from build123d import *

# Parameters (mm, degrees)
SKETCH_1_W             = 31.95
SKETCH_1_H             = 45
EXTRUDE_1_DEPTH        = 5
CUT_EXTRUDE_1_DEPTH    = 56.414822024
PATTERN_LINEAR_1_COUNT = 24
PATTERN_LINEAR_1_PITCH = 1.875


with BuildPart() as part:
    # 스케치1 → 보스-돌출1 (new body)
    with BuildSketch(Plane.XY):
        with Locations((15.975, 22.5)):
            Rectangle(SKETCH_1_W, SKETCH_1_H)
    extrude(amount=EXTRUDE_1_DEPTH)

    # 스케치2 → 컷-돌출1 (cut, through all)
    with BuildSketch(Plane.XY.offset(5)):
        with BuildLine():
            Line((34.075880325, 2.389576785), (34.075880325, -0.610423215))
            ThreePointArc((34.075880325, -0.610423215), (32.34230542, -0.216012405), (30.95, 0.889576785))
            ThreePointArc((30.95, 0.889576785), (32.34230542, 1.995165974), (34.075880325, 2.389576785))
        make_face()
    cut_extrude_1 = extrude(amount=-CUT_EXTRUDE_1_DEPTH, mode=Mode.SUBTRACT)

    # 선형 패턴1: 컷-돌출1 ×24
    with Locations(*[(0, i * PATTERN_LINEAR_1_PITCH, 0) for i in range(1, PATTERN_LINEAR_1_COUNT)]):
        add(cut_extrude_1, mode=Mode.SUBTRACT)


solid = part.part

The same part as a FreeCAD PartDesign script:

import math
import FreeCAD as App
import Part
import Sketcher
from FreeCAD import Vector
Q = App.Units.Quantity

doc = App.newDocument("Part")
body = doc.addObject("PartDesign::Body", "Body")

# Sketch on XY plane
sketch1 = doc.addObject("Sketcher::SketchObject", "Sketch")
body.addObject(sketch1)
sketch1.AttachmentSupport = (doc.XY_Plane, [""])
sketch1.MapMode = "FlatFace"
sketch1.addGeometry(Part.LineSegment(Vector(0, 45, 0), Vector(0, 0, 0)), False)
sketch1.addGeometry(Part.LineSegment(Vector(0, 0, 0), Vector(32, 0, 0)), False)
sketch1.addGeometry(Part.LineSegment(Vector(32, 0, 0), Vector(32, 45, 0)), False)
sketch1.addGeometry(Part.LineSegment(Vector(32, 45, 0), Vector(0, 45, 0)), False)
sketch1.addConstraint(Sketcher.Constraint("Coincident", 0, 2, 1, 1))
sketch1.addConstraint(Sketcher.Constraint("Coincident", 1, 2, 2, 1))
sketch1.addConstraint(Sketcher.Constraint("Coincident", 2, 2, 3, 1))
sketch1.addConstraint(Sketcher.Constraint("Coincident", 3, 2, 0, 1))
sketch1.addConstraint(Sketcher.Constraint("Vertical", 0))
sketch1.addConstraint(Sketcher.Constraint("Horizontal", 1))
sketch1.addConstraint(Sketcher.Constraint("Vertical", 2))
sketch1.addConstraint(Sketcher.Constraint("Horizontal", 3))
sketch1.addConstraint(Sketcher.Constraint("Coincident", 0, 2, -1, 1))
sketch1.addConstraint(Sketcher.Constraint("DistanceY", 0, 2, 0, 1, Q("45 mm")))
sketch1.addConstraint(Sketcher.Constraint("DistanceX", 1, 1, 1, 2, Q("31.95 mm")))
pad1 = doc.addObject("PartDesign::Pad", "Pad")
body.addObject(pad1)
pad1.Profile = sketch1
pad1.Length = 5

# Sketch on XY plane
sketch2 = doc.addObject("Sketcher::SketchObject", "Sketch001")
body.addObject(sketch2)
sketch2.AttachmentSupport = (doc.XY_Plane, [""])
sketch2.MapMode = "FlatFace"
sketch2.AttachmentOffset = App.Placement(Vector(0, 0, 5), App.Rotation())
sketch2.addGeometry(Part.LineSegment(Vector(34.1, -0.6, 0), Vector(34.1, 2.4, 0)), False)
sketch2.addGeometry(Part.ArcOfCircle(Part.Circle(Vector(34.1, -1.6, 0), Vector(0, 0, 1), 4), math.radians(90), math.radians(141)), False)
sketch2.addGeometry(Part.ArcOfCircle(Part.Circle(Vector(34.1, 3.4, 0), Vector(0, 0, 1), 4), math.radians(-141), math.radians(-90)), False)
sketch2.addConstraint(Sketcher.Constraint("Coincident", 0, 2, 1, 1))
sketch2.addConstraint(Sketcher.Constraint("Coincident", 1, 2, 2, 1))
sketch2.addConstraint(Sketcher.Constraint("Coincident", 2, 2, 0, 1))
sketch2.addConstraint(Sketcher.Constraint("Vertical", 0))
sketch2.addConstraint(Sketcher.Constraint("Equal", 1, 2))
sketch2.addConstraint(Sketcher.Constraint("Vertical", 1, 3, 2, 3))
sketch2.addConstraint(Sketcher.Constraint("Vertical", 2, 3, 0, 2))
sketch2.addConstraint(Sketcher.Constraint("DistanceY", 0, 1, 0, 2, Q("3 mm")))
sketch2.addConstraint(Sketcher.Constraint("DistanceX", -1, 1, 1, 2, Q("30.95 mm")))
sketch2.addConstraint(Sketcher.Constraint("Radius", 1, Q("4.007043 mm")))
sketch2.addConstraint(Sketcher.Constraint("DistanceY", -1, 1, 2, 3, Q("3.396619 mm")))
pocket1 = doc.addObject("PartDesign::Pocket", "Pocket")
body.addObject(pocket1)
pocket1.Profile = sketch2
pocket1.Type = "ThroughAll"
doc.recompute()

linearpattern = doc.addObject("PartDesign::LinearPattern", "LinearPattern")
body.addObject(linearpattern)
linearpattern.Originals = [pocket1]
linearpattern.Direction = (doc.Y_Axis, [""])
linearpattern.Mode = "offset"
linearpattern.Offset = 1.875
linearpattern.Occurrences = 24
body.Tip = linearpattern

doc.recompute()
